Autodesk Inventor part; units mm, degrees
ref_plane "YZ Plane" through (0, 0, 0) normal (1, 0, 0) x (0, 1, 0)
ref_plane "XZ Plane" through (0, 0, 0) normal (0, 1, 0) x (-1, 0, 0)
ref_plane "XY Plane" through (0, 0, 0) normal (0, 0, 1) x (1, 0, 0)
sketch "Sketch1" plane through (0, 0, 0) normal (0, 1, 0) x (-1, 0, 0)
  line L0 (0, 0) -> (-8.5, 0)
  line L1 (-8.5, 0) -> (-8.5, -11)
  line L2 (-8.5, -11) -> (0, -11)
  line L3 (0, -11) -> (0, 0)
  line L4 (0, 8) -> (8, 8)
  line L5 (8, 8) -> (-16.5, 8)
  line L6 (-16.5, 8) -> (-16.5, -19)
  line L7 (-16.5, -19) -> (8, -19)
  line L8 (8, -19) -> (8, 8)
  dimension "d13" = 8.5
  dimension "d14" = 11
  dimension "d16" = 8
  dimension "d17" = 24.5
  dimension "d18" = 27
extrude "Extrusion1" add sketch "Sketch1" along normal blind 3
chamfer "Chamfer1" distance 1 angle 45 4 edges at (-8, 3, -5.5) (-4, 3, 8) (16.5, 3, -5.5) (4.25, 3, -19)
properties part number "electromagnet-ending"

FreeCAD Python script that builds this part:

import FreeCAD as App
import Part
import Sketcher

V = App.Vector


def edges_at(feature, points):
    """Names of the edges that pass closest to the given points."""
    edges = feature.Shape.Edges
    near = lambda p: min(range(len(edges)), key=lambda i: edges[i].distToShape(Part.Vertex(*p))[0])
    return sorted({f"Edge{near(p) + 1}" for p in points})


def add_polygon(sketch, points):
    """Adds a closed chain of lines whose ends are joined by coincident constraints."""
    first, n = sketch.GeometryCount, len(points)
    for a, b in zip(points, points[1:] + points[:1]):
        sketch.addGeometry(Part.LineSegment(App.Vector(*a, 0), App.Vector(*b, 0)), False)
    for i in range(n):
        sketch.addConstraint(Sketcher.Constraint("Coincident", first + i, 2, first + (i + 1) % n, 1))

doc = App.newDocument("Part")
body = doc.addObject("PartDesign::Body", "Body")

sketch1 = body.newObject("Sketcher::SketchObject", "Sketch")
sketch1.AttachmentSupport = (doc.getObject("XZ_Plane"), [""])
sketch1.MapMode = "FlatFace"
add_polygon(sketch1, [(-8, 8), (16, 8), (16, -19), (-8, -19)])
add_polygon(sketch1, [(8, 0), (0, 0), (0, -11), (8, -11)])
sketch1.addConstraint([
    Sketcher.Constraint("Horizontal", 0),
    Sketcher.Constraint("Vertical", 1),
    Sketcher.Constraint("Horizontal", 2),
    Sketcher.Constraint("Vertical", 3),
    Sketcher.Constraint("Horizontal", 4),
    Sketcher.Constraint("Vertical", 5),
    Sketcher.Constraint("Horizontal", 6),
    Sketcher.Constraint("Vertical", 7),
    Sketcher.Constraint("Coincident", 4, 2, -1, 1),
    Sketcher.Constraint("DistanceY", 1, 2, 1, 1, 27.0),
    Sketcher.Constraint("DistanceY", 5, 2, 5, 1, 11.0),
    Sketcher.Constraint("DistanceX", 0, 1, 0, 2, 24.5),
    Sketcher.Constraint("DistanceX", 4, 2, 4, 1, 8.5),
    Sketcher.Constraint("DistanceY", -1, 1, 0, 2, 8.0),
    Sketcher.Constraint("DistanceX", 2, 2, -1, 1, 8.0),
])
pad1 = body.newObject("PartDesign::Pad", "Pad")
pad1.Profile = sketch1
pad1.Length = 3
pad1.Reversed = True
doc.recompute()

chamfer = body.newObject("PartDesign::Chamfer", "Chamfer")
chamfer.Base = (pad1, edges_at(pad1, [
    (-8, 3, -5.5),
    (-4, 3, 8),
    (16.5, 3, -5.5),
    (4.25, 3, -19),
]))
chamfer.Size = 1

doc.recompute()
